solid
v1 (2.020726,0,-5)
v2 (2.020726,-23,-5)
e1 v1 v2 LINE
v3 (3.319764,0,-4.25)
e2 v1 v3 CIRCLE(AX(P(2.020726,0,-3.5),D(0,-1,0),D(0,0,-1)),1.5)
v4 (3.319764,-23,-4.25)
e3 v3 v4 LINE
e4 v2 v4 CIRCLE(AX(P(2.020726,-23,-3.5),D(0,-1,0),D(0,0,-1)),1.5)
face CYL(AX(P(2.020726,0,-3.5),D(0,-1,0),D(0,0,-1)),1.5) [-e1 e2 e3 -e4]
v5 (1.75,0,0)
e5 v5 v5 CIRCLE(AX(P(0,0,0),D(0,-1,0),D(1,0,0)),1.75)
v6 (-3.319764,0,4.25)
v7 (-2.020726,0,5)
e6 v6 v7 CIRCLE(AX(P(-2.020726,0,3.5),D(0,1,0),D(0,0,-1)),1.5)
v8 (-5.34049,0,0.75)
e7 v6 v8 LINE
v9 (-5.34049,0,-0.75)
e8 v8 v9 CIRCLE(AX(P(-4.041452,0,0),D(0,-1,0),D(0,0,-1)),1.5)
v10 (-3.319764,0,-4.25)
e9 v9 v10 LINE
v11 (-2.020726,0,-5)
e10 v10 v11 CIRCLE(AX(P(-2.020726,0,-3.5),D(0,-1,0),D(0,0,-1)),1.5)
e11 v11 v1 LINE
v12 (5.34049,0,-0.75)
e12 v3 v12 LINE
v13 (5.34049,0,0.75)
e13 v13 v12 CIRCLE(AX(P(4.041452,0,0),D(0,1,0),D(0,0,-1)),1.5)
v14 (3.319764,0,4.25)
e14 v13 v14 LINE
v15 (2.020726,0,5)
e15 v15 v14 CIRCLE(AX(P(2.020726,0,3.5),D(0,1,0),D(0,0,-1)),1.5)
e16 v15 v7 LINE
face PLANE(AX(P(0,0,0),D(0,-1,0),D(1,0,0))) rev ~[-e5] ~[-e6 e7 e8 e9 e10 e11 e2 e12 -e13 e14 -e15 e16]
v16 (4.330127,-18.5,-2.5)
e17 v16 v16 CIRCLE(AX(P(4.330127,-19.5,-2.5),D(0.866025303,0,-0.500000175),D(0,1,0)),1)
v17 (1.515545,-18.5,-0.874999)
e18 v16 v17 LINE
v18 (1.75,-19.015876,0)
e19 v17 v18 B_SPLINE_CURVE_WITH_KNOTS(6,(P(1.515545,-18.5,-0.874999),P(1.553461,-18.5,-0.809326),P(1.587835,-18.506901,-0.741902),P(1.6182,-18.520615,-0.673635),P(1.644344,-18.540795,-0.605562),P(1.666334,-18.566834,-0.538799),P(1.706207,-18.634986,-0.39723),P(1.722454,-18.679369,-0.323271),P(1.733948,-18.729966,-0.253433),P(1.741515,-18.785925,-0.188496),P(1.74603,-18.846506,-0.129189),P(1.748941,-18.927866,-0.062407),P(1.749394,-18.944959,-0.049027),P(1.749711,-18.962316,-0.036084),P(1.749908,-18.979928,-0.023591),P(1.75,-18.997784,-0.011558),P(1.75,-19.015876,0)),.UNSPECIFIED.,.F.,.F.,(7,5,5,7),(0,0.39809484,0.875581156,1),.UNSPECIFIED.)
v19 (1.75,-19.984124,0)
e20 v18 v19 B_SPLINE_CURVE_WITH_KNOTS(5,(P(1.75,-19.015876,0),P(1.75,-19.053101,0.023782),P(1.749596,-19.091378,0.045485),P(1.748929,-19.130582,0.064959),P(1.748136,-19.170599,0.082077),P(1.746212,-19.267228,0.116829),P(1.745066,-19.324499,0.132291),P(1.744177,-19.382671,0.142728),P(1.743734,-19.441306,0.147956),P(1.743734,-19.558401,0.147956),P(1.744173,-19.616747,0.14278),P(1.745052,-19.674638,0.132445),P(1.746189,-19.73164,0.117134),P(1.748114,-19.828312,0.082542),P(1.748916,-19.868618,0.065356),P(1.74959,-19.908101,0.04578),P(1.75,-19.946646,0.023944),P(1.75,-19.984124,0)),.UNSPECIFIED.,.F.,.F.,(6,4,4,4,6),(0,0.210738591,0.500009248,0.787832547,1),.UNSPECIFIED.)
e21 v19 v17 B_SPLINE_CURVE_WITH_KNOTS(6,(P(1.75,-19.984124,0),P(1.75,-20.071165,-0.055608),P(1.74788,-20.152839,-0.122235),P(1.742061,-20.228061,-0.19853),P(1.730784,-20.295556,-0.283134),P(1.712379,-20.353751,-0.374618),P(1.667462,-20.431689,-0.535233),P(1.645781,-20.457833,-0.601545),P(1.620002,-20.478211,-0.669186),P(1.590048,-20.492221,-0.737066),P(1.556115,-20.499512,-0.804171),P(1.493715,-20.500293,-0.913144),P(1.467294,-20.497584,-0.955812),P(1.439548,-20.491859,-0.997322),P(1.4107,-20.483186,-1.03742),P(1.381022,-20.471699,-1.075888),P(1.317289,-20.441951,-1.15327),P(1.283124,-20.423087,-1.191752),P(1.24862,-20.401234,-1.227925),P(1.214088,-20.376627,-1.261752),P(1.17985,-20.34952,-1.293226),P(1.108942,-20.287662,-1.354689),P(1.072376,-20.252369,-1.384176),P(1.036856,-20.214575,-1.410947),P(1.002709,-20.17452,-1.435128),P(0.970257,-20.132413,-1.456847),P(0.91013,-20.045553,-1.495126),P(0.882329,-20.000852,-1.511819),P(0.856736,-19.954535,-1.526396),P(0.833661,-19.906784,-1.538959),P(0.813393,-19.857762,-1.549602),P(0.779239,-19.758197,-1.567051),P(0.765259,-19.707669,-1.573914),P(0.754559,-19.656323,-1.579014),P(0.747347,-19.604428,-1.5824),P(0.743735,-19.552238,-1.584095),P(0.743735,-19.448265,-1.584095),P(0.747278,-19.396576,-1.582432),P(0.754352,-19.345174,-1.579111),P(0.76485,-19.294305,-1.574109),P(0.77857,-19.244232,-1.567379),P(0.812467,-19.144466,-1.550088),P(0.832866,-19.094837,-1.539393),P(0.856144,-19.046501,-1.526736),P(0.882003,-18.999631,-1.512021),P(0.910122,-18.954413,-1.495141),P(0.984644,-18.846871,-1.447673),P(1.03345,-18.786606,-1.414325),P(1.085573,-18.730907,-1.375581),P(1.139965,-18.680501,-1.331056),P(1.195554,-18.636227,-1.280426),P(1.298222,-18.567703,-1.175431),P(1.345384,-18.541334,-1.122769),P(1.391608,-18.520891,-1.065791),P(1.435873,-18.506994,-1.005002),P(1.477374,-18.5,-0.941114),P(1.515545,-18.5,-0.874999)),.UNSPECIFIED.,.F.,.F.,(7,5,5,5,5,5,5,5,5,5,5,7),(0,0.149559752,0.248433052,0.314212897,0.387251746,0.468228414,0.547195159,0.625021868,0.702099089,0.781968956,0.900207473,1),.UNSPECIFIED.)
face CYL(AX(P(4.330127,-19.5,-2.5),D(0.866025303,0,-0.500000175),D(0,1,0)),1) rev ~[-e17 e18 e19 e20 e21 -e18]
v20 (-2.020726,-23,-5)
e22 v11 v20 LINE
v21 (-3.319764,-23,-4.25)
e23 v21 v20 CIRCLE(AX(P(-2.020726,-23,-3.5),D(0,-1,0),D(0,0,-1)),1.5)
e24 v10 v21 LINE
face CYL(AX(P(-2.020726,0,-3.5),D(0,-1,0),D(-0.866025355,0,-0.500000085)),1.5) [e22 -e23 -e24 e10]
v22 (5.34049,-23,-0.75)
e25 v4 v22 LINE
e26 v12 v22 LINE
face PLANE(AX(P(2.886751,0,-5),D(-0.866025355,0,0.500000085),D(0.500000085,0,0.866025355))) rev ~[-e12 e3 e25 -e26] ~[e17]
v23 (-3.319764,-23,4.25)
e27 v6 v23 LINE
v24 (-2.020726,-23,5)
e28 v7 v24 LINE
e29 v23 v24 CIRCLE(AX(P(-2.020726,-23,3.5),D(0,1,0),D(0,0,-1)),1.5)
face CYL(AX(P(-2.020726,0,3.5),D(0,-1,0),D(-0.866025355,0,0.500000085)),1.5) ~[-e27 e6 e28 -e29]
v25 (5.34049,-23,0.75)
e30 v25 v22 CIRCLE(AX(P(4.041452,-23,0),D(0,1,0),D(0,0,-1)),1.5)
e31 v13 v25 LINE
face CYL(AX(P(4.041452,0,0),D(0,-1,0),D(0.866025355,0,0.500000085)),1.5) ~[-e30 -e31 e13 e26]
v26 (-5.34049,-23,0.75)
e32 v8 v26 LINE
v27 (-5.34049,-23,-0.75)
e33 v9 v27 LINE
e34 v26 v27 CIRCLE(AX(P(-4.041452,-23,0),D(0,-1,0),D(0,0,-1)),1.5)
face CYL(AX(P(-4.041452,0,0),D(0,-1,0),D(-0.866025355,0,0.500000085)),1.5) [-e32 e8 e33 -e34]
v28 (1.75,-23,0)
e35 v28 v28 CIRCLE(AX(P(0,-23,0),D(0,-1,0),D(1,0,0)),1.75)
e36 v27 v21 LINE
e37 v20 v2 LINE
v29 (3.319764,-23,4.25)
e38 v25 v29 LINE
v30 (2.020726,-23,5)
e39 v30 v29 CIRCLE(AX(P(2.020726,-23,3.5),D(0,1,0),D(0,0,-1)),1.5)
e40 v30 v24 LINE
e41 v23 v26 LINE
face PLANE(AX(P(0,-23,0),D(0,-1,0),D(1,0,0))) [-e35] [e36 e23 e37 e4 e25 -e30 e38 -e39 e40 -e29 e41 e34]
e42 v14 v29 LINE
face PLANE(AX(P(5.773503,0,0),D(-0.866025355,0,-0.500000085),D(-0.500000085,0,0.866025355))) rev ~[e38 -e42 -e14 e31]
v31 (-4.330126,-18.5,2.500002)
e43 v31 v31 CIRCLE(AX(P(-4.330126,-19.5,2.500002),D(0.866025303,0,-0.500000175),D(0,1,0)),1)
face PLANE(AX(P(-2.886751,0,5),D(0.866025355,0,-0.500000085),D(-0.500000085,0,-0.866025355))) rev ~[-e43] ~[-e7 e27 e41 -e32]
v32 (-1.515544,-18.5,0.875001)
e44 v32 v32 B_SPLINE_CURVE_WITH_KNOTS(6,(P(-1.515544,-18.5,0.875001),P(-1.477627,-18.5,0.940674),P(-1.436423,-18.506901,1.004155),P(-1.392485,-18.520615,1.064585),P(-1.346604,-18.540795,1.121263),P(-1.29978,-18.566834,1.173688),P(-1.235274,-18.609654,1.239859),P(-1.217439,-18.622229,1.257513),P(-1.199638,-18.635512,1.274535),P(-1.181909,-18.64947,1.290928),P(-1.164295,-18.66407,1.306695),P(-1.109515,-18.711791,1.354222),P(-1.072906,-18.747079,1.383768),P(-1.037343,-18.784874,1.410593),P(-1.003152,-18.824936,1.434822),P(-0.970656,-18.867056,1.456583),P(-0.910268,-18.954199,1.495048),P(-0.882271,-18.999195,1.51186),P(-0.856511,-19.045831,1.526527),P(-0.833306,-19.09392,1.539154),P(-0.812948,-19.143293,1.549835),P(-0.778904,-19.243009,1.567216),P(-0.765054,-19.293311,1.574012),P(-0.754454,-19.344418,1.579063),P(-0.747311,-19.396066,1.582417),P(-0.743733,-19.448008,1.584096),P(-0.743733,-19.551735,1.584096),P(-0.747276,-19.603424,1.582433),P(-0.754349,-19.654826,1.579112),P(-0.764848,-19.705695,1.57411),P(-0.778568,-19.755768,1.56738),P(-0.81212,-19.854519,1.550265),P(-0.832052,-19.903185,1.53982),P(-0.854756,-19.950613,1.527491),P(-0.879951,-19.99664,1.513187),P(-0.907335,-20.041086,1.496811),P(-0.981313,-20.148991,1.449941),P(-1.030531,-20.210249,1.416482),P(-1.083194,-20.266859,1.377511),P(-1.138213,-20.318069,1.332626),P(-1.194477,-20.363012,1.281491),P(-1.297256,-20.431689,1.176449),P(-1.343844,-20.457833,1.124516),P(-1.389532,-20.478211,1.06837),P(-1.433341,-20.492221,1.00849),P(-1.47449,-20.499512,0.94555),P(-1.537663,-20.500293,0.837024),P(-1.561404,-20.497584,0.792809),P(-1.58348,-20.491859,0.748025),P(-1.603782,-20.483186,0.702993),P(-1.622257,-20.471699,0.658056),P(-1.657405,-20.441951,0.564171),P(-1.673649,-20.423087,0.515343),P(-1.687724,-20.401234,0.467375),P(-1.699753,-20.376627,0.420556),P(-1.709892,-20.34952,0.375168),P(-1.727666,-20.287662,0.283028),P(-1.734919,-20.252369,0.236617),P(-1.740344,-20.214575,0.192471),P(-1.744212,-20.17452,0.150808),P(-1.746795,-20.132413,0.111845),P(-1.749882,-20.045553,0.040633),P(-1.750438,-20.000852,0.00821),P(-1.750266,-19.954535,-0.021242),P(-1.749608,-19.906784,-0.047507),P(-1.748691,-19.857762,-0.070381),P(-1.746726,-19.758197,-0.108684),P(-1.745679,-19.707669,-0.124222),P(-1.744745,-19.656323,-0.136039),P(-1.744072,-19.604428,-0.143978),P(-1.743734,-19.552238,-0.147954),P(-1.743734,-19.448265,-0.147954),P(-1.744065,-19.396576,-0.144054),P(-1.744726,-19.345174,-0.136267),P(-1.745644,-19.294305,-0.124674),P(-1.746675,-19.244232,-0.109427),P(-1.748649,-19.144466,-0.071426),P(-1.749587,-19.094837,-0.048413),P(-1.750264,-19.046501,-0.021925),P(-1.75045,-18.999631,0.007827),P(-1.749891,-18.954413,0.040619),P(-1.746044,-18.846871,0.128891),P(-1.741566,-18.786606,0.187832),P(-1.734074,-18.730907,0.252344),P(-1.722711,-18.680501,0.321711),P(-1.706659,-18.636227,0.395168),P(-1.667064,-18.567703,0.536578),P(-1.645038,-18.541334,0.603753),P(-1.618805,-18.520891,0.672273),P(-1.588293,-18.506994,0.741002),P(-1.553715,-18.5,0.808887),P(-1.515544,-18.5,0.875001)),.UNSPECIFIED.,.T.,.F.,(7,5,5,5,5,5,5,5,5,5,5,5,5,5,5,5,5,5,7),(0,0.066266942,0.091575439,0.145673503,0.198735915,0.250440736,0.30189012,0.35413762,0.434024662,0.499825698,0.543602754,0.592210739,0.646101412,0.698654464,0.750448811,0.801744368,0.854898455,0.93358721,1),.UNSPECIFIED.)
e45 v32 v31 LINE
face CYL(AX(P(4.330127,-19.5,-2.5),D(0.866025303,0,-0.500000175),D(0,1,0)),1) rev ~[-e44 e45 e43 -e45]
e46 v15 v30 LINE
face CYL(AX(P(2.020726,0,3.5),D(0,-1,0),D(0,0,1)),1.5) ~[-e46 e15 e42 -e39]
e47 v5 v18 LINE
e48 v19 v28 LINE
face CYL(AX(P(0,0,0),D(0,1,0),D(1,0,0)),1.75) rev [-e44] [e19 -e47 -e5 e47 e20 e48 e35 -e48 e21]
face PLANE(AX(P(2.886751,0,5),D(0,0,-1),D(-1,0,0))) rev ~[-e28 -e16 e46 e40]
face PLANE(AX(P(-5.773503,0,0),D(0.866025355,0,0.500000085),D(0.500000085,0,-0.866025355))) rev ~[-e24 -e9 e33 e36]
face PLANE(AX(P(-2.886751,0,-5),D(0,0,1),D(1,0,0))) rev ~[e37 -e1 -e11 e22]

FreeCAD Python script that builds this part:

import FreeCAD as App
import Part
import Sketcher

V = App.Vector
Q = App.Units.Quantity


def edges_at(feature, points):
    """Names of the edges that pass closest to the given points."""
    edges = feature.Shape.Edges
    near = lambda p: min(range(len(edges)), key=lambda i: edges[i].distToShape(Part.Vertex(*p))[0])
    return sorted({f"Edge{near(p) + 1}" for p in points})


def add_polygon(sketch, points):
    """Adds a closed chain of lines whose ends are joined by coincident constraints."""
    first, n = sketch.GeometryCount, len(points)
    for a, b in zip(points, points[1:] + points[:1]):
        sketch.addGeometry(Part.LineSegment(App.Vector(*a, 0), App.Vector(*b, 0)), False)
    for i in range(n):
        sketch.addConstraint(Sketcher.Constraint("Coincident", first + i, 2, first + (i + 1) % n, 1))

doc = App.newDocument("Part")
body = doc.addObject("PartDesign::Body", "Body")

# Sketch on XZ plane
sketch1 = doc.addObject("Sketcher::SketchObject", "Sketch")
body.addObject(sketch1)
sketch1.AttachmentSupport = (doc.XZ_Plane, [""])
sketch1.MapMode = "FlatFace"
add_polygon(sketch1, [(-2.9, 5), (-5.8, 0), (-2.9, -5), (2.9, -5), (5.8, 0), (2.9, 5)])  # lines 0-5
sketch1.addGeometry(Part.Circle(V(0, 0, 0), V(0, 0, 1), 1.8), False)  # 6
sketch1.addConstraint(Sketcher.Constraint("Horizontal", 2))
sketch1.addConstraint(Sketcher.Constraint("Horizontal", 5))
sketch1.addConstraint(Sketcher.Constraint("Coincident", 6, 3, -1, 1))
sketch1.addConstraint(Sketcher.Constraint("Symmetric", 0, 2, 3, 2, -1, 1))
sketch1.addConstraint(Sketcher.Constraint("Symmetric", 1, 2, 4, 2, -1, 1))
sketch1.addConstraint(Sketcher.Constraint("PointOnObject", 0, 2, -1))
sketch1.addConstraint(Sketcher.Constraint("Parallel", 0, 3))
sketch1.addConstraint(Sketcher.Constraint("Vertical", 2, 2, 4, 2))
sketch1.addConstraint(Sketcher.Constraint("Diameter", 6, 3.5))
sketch1.addConstraint(Sketcher.Constraint("Angle", 0, Q("-120.000006 deg")))
sketch1.addConstraint(Sketcher.Constraint("DistanceY", 1, 2, -1, 1, 5.0))
sketch1.addConstraint(Sketcher.Constraint("DistanceX", 2, 1, 2, 2, 5.773502))
pad1 = doc.addObject("PartDesign::Pad", "Pad")
body.addObject(pad1)
pad1.Profile = sketch1
pad1.Length = 23
doc.recompute()

fillet = doc.addObject("PartDesign::Fillet", "Fillet")
body.addObject(fillet)
fillet.Base = (pad1, edges_at(pad1, [
    (2.887, -11.5, 5),
    (-2.887, -11.5, 5),
    (5.774, -11.5, 0),
    (2.887, -11.5, -5),
    (-2.887, -11.5, -5),
    (-5.774, -11.5, 0),
]))
fillet.Radius = 1.5

# Sketch on an angled plane
sketch2 = doc.addObject("Sketcher::SketchObject", "Sketch001")
body.addObject(sketch2)
sketch2.Placement = App.Placement(V(4.330127, 0, -2.5), App.Rotation(V(0, 1, 0), V(0.500000175, 0, 0.866025303), V(0.866025303, 0, -0.500000175), "ZXY"))
sketch2.addGeometry(Part.Circle(V(-19.5, 0, 0), V(0, 0, 1), 1), False)
sketch2.addConstraint(Sketcher.Constraint("PointOnObject", 0, 3, -1))
sketch2.addConstraint(Sketcher.Constraint("Diameter", 0, 2.0))
sketch2.addConstraint(Sketcher.Constraint("DistanceX", 0, 3, -1, 1, 19.5))
pocket1 = doc.addObject("PartDesign::Pocket", "Pocket")
body.addObject(pocket1)
pocket1.Profile = sketch2
pocket1.Type = "ThroughAll"

doc.recompute()
